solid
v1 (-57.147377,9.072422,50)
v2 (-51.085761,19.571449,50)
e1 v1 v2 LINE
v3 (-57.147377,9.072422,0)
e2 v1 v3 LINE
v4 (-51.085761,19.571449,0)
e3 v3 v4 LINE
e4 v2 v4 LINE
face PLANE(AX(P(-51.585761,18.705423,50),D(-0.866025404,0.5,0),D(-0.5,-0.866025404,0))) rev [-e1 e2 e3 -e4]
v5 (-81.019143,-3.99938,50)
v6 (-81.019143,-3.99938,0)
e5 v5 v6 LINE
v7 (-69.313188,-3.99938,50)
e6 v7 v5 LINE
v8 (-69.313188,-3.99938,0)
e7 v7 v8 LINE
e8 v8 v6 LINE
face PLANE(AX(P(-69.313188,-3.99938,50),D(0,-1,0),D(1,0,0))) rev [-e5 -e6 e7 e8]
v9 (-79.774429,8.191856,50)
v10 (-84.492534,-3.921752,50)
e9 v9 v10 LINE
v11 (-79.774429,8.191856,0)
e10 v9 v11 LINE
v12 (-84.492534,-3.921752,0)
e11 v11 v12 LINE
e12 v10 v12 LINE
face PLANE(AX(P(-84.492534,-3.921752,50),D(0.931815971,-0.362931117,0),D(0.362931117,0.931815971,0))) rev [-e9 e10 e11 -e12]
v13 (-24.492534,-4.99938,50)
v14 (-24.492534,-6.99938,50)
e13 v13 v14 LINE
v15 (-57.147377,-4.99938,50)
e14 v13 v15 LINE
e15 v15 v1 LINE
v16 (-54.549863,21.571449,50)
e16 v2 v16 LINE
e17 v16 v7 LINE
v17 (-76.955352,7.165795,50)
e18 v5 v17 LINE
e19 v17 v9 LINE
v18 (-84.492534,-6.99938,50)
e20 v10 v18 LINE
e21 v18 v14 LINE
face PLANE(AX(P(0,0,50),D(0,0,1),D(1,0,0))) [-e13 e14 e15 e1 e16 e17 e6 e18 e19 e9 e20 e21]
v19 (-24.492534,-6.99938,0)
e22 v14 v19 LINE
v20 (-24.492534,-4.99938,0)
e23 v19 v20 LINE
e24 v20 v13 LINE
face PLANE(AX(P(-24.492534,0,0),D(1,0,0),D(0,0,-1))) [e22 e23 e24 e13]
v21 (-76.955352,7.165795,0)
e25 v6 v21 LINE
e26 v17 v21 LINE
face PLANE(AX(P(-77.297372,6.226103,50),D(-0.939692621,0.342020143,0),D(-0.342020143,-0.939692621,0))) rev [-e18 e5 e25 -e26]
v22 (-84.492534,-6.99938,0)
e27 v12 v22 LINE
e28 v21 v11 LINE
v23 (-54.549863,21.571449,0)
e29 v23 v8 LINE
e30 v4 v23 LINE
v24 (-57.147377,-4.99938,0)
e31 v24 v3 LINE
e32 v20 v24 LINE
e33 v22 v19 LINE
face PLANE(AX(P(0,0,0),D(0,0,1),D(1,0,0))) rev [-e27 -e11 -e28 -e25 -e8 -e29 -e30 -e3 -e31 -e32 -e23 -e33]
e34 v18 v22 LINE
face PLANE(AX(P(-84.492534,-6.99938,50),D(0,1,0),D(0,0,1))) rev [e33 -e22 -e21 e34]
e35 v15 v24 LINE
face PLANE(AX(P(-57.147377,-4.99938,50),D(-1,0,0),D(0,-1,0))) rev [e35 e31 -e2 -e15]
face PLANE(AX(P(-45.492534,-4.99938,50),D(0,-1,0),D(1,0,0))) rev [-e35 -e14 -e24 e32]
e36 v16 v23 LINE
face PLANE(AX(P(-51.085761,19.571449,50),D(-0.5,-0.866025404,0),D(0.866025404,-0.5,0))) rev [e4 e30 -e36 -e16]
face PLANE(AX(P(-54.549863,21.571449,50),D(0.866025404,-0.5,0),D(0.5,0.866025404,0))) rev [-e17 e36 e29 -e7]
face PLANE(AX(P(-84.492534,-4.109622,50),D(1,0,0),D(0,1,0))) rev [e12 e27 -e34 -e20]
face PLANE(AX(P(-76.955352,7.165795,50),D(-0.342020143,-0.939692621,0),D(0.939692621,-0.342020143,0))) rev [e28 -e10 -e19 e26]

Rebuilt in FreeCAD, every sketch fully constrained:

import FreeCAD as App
import Part
import Sketcher
Q = App.Units.Quantity


def add_polygon(sketch, points):
    """Adds a closed chain of lines whose ends are joined by coincident constraints."""
    first, n = sketch.GeometryCount, len(points)
    for a, b in zip(points, points[1:] + points[:1]):
        sketch.addGeometry(Part.LineSegment(App.Vector(*a, 0), App.Vector(*b, 0)), False)
    for i in range(n):
        sketch.addConstraint(Sketcher.Constraint("Coincident", first + i, 2, first + (i + 1) % n, 1))

doc = App.newDocument("Part")
body = doc.addObject("PartDesign::Body", "Body")

# Sketch on XY plane
sketch1 = body.newObject("Sketcher::SketchObject", "Sketch")
sketch1.AttachmentSupport = (doc.getObject("XY_Plane"), [""])
sketch1.MapMode = "FlatFace"
add_polygon(sketch1, [(-84.49, -7), (-44.49, -7), (-44.49, -5), (-57.15, -5), (-57.15, 9.07), (-51.59, 18.71), (-51.09, 19.57), (-54.55, 21.57), (-69.31, -4), (-81.02, -4), (-80.53, -2.66), (-77.3, 6.23), (-76.96, 7.17), (-79.77, 8.19), (-80.13, 7.28), (-84.42, -3.75), (-84.49, -3.92)])  # lines 0-16
sketch1.addConstraint(Sketcher.Constraint("Horizontal", 0))
sketch1.addConstraint(Sketcher.Constraint("Vertical", 1))
sketch1.addConstraint(Sketcher.Constraint("Horizontal", 2))
sketch1.addConstraint(Sketcher.Constraint("Vertical", 3))
sketch1.addConstraint(Sketcher.Constraint("Horizontal", 8))
sketch1.addConstraint(Sketcher.Constraint("Vertical", 16))
sketch1.addConstraint(Sketcher.Constraint("Parallel", 4, 5))
sketch1.addConstraint(Sketcher.Constraint("Perpendicular", 5, 6))
sketch1.addConstraint(Sketcher.Constraint("Perpendicular", 6, 7))
sketch1.addConstraint(Sketcher.Constraint("Parallel", 9, 10))
sketch1.addConstraint(Sketcher.Constraint("Parallel", 10, 11))
sketch1.addConstraint(Sketcher.Constraint("Perpendicular", 11, 12))
sketch1.addConstraint(Sketcher.Constraint("Parallel", 13, 14))
sketch1.addConstraint(Sketcher.Constraint("Parallel", 14, 15))
sketch1.addConstraint(Sketcher.Constraint("Equal", 5, 11))
sketch1.addConstraint(Sketcher.Constraint("DistanceX", 0, 1, 0, 2, Q("40 mm")))
sketch1.addConstraint(Sketcher.Constraint("DistanceY", 1, 1, 1, 2, Q("2 mm")))
sketch1.addConstraint(Sketcher.Constraint("Angle", 4, Q("60 deg")))
sketch1.addConstraint(Sketcher.Constraint("Angle", 9, Q("70 deg")))
sketch1.addConstraint(Sketcher.Constraint("Distance", 5, Q("1 mm")))
sketch1.addConstraint(Sketcher.Constraint("Distance", 6, Q("4 mm")))
sketch1.addConstraint(Sketcher.Constraint("Distance", 12, Q("3 mm")))
sketch1.addConstraint(Sketcher.Constraint("DistanceY", 2, 2, 7, 2, Q("1 mm")))
sketch1.addConstraint(Sketcher.Constraint("DistanceY", 3, 2, 4, 2, Q("9.633001 mm")))
sketch1.addConstraint(Sketcher.Constraint("Distance", 13, Q("0.9779 mm")))
sketch1.addConstraint(Sketcher.Constraint("DistanceY", 16, 2, 16, 1, Q("3.077628 mm")))
sketch1.addConstraint(Sketcher.Constraint("DistanceX", 9, 2, 7, 2, Q("11.2175 mm")))
sketch1.addConstraint(Sketcher.Constraint("Distance", 7, Q("29.52665 mm")))
sketch1.addConstraint(Sketcher.Constraint("Distance", 9, Q("1.428148 mm")))
sketch1.addConstraint(Sketcher.Constraint("Distance", 14, Q("11.834229 mm")))
sketch1.addConstraint(Sketcher.Constraint("Distance", 15, Q("0.18787 mm")))
sketch1.addConstraint(Sketcher.Constraint("DistanceX", 2, 2, 2, 1, Q("12.654843 mm")))
sketch1.addConstraint(Sketcher.Constraint("DistanceY", 0, 2, -1, 1, Q("6.99938 mm")))
sketch1.addConstraint(Sketcher.Constraint("DistanceX", 4, 2, -1, 1, Q("51.585761 mm")))
pad1 = body.newObject("PartDesign::Pad", "Pad")
pad1.Profile = sketch1
pad1.Length = 50

# Sketch on YZ plane
sketch2 = body.newObject("Sketcher::SketchObject", "Sketch001")
sketch2.AttachmentSupport = (doc.getObject("YZ_Plane"), [""])
sketch2.MapMode = "FlatFace"
sketch2.AttachmentOffset = App.Placement(App.Vector(0, 0, -44.492534), App.Rotation())
add_polygon(sketch2, [(-5, 50), (-7, 50), (-7, 0), (-5, 0)])  # lines 0-3
sketch2.addConstraint(Sketcher.Constraint("Horizontal", 0))
sketch2.addConstraint(Sketcher.Constraint("Vertical", 1))
sketch2.addConstraint(Sketcher.Constraint("Horizontal", 2))
sketch2.addConstraint(Sketcher.Constraint("Vertical", 3))
sketch2.addConstraint(Sketcher.Constraint("PointOnObject", 1, 2, -1))
sketch2.addConstraint(Sketcher.Constraint("DistanceX", 0, 2, 0, 1, Q("2 mm")))
sketch2.addConstraint(Sketcher.Constraint("DistanceY", 1, 2, 1, 1, Q("50 mm")))
sketch2.addConstraint(Sketcher.Constraint("DistanceX", 0, 2, -1, 1, Q("6.99938 mm")))
pad2 = body.newObject("PartDesign::Pad", "Pad001")
pad2.Profile = sketch2
pad2.Length = 20

doc.recompute()
